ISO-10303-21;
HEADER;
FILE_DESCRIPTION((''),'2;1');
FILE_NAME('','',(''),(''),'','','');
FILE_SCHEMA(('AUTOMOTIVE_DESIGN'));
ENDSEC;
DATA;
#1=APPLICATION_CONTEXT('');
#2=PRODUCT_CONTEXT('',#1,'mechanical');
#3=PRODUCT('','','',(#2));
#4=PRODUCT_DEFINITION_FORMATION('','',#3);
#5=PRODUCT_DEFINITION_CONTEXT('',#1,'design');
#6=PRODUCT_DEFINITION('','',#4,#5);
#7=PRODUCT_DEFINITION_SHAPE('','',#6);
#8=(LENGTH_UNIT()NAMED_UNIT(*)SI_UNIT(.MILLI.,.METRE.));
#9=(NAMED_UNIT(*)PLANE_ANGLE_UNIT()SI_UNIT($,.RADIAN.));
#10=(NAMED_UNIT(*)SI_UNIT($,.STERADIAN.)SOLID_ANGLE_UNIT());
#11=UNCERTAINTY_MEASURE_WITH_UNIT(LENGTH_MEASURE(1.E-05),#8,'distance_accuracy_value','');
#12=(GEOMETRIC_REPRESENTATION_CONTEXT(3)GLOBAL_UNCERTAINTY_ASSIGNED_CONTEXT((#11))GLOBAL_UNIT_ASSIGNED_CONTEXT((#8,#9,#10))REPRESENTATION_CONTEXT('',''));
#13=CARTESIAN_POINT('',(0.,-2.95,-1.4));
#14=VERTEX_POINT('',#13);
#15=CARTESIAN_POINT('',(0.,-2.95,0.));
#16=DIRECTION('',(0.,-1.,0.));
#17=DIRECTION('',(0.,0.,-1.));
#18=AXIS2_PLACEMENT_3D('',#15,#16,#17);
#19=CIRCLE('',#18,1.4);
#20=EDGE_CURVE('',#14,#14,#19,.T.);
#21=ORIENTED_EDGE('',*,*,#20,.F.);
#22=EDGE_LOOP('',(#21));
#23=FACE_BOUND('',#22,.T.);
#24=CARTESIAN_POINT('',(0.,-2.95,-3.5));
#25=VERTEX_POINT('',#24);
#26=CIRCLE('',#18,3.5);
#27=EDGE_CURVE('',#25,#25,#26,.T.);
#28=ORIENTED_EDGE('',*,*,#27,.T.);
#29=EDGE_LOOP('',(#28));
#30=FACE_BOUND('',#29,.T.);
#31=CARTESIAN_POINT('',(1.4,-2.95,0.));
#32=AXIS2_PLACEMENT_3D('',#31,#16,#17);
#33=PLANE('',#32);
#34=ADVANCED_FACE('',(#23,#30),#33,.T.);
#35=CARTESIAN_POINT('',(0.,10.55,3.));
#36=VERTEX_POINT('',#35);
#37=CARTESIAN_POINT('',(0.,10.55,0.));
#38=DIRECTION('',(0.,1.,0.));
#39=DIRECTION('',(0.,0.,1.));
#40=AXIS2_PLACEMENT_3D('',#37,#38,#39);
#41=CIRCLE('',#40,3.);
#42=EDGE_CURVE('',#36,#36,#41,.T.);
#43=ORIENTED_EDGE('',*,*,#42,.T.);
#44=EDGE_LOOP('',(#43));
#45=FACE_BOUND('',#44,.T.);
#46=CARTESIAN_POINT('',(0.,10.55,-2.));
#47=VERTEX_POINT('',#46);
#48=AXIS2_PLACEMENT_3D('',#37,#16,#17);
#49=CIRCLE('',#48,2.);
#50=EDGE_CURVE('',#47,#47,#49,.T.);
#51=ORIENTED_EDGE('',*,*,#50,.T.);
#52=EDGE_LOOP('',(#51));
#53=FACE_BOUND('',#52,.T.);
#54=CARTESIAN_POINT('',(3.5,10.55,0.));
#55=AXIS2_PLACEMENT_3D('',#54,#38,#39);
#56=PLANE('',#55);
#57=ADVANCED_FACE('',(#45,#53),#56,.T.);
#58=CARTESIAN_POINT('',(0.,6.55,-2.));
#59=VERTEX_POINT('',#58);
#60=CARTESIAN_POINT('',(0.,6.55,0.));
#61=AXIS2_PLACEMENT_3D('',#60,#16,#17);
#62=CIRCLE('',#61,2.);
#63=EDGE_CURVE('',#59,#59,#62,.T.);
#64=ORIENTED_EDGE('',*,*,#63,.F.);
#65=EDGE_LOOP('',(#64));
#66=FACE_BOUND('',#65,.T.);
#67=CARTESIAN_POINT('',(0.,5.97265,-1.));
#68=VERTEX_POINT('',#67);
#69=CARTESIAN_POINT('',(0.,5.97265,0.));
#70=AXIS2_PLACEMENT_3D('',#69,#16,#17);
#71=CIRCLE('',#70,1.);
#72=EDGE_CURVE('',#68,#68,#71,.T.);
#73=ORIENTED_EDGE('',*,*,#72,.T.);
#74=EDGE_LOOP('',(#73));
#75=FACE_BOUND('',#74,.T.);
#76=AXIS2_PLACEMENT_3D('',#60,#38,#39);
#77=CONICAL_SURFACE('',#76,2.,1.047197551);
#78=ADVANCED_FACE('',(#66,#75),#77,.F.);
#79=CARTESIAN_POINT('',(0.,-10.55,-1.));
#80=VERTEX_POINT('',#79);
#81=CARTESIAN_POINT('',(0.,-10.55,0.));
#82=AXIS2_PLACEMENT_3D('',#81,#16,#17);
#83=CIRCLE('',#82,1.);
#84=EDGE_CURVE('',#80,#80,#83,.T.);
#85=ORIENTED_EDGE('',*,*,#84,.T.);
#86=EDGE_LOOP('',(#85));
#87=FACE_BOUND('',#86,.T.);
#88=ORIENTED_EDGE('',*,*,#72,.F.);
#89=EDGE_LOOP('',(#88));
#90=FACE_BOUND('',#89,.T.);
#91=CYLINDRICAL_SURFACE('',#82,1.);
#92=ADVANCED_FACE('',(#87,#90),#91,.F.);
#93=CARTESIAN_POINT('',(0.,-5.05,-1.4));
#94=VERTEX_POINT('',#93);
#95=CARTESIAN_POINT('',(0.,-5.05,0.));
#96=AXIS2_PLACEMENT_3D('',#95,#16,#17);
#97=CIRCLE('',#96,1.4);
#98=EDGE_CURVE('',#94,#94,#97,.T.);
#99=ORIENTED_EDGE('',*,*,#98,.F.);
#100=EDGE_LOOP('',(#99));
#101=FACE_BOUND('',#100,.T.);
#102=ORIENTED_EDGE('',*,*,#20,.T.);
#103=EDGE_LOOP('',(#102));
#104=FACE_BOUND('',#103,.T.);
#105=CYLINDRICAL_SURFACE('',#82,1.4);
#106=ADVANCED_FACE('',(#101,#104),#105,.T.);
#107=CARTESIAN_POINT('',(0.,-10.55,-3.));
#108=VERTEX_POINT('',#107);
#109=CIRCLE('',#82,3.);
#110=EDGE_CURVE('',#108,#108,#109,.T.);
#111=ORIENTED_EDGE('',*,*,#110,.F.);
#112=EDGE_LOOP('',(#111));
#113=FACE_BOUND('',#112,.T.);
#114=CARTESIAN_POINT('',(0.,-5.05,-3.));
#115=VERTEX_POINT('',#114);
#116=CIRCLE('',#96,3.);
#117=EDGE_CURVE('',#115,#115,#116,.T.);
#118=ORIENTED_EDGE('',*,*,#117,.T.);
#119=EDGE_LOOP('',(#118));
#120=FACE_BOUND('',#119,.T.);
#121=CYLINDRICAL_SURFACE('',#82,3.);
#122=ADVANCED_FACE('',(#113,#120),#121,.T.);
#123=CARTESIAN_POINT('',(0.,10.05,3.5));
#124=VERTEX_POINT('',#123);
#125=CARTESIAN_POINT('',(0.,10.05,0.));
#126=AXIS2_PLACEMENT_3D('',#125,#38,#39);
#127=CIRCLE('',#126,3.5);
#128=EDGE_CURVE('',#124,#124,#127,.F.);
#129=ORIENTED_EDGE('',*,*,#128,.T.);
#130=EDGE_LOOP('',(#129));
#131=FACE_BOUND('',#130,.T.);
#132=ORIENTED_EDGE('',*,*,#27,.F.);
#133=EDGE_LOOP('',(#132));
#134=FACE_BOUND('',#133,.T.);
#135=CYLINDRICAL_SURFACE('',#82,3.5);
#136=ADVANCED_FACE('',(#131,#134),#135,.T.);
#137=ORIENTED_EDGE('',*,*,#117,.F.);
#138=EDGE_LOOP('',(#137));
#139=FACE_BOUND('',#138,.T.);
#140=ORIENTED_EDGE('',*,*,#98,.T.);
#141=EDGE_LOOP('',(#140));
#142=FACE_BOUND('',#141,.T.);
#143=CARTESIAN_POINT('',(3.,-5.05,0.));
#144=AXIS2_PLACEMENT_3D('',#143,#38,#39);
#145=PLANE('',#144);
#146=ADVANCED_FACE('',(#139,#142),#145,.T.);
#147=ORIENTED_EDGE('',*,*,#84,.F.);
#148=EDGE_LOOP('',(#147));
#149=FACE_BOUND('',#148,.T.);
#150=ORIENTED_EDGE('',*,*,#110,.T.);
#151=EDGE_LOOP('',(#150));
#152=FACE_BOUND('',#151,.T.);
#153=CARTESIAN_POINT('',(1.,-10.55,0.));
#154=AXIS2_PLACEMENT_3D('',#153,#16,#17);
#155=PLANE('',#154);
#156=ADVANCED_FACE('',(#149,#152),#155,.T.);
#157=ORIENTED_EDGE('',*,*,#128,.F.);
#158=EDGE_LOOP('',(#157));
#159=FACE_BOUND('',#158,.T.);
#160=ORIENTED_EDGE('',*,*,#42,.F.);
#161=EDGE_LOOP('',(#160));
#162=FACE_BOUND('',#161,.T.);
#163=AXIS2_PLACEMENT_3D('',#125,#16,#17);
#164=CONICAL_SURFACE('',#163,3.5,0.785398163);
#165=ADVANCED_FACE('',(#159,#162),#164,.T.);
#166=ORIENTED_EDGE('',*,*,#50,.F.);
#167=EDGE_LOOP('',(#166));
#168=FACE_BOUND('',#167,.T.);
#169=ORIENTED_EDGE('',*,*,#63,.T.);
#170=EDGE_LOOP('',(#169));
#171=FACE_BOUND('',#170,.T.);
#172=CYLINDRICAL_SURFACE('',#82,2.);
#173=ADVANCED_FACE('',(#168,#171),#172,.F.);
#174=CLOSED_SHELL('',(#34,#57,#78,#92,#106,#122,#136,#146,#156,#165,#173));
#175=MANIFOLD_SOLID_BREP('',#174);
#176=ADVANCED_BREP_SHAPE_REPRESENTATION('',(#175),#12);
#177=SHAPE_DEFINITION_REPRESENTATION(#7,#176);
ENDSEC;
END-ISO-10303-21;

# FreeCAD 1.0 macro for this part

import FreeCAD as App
import Part
import Sketcher
Q = App.Units.Quantity


def edges_at(feature, points):
    """Names of the edges that pass closest to the given points."""
    edges = feature.Shape.Edges
    near = lambda p: min(range(len(edges)), key=lambda i: edges[i].distToShape(Part.Vertex(*p))[0])
    return sorted({f"Edge{near(p) + 1}" for p in points})


def add_polygon(sketch, points):
    """Adds a closed chain of lines whose ends are joined by coincident constraints."""
    first, n = sketch.GeometryCount, len(points)
    for a, b in zip(points, points[1:] + points[:1]):
        sketch.addGeometry(Part.LineSegment(App.Vector(*a, 0), App.Vector(*b, 0)), False)
    for i in range(n):
        sketch.addConstraint(Sketcher.Constraint("Coincident", first + i, 2, first + (i + 1) % n, 1))

doc = App.newDocument("Part")
body = doc.addObject("PartDesign::Body", "Body")

# Sketch on XY plane
sketch1 = doc.addObject("Sketcher::SketchObject", "Sketch")
body.addObject(sketch1)
sketch1.AttachmentSupport = (doc.XY_Plane, [""])
sketch1.MapMode = "FlatFace"
add_polygon(sketch1, [(1, -10.6), (3, -10.6), (3, -5), (1.4, -5), (1.4, -3), (3.5, -3), (3.5, 10.6), (2, 10.6), (2, 6.5), (1, 6)])  # lines 0-9
sketch1.addConstraint([
    Sketcher.Constraint("Horizontal", 0),
    Sketcher.Constraint("Vertical", 1),
    Sketcher.Constraint("Horizontal", 2),
    Sketcher.Constraint("Vertical", 3),
    Sketcher.Constraint("Horizontal", 4),
    Sketcher.Constraint("Vertical", 5),
    Sketcher.Constraint("Horizontal", 6),
    Sketcher.Constraint("Vertical", 7),
    Sketcher.Constraint("Vertical", 9),
    Sketcher.Constraint("Equal", 4, 3),
    Sketcher.Constraint("DistanceX", 0, 1, 0, 2, 2.0),
    Sketcher.Constraint("DistanceY", 7, 2, 7, 1, 4.0),
    Sketcher.Constraint("Angle", 8, Q("-150 deg")),
    Sketcher.Constraint("DistanceX", 2, 2, 2, 1, 1.6),
    Sketcher.Constraint("DistanceX", 4, 1, 4, 2, 2.1),
    Sketcher.Constraint("DistanceX", 6, 2, 6, 1, 1.5),
    Sketcher.Constraint("DistanceY", 1, 1, 1, 2, 5.5),
    Sketcher.Constraint("DistanceY", 5, 1, 5, 2, 13.5),
    Sketcher.Constraint("DistanceX", -1, 1, 0, 2, 3.0),
    Sketcher.Constraint("DistanceY", 0, 2, -1, 1, 10.55),
])
revolution = doc.addObject("PartDesign::Revolution", "Revolution")
body.addObject(revolution)
revolution.Profile = sketch1
revolution.ReferenceAxis = (sketch1, ["V_Axis"])
revolution.Angle = 360
doc.recompute()

chamfer = doc.addObject("PartDesign::Chamfer", "Chamfer")
body.addObject(chamfer)
chamfer.Base = (revolution, edges_at(revolution, [(-3.5, 10.55, 0)]))
chamfer.Size = 0.5

doc.recompute()
